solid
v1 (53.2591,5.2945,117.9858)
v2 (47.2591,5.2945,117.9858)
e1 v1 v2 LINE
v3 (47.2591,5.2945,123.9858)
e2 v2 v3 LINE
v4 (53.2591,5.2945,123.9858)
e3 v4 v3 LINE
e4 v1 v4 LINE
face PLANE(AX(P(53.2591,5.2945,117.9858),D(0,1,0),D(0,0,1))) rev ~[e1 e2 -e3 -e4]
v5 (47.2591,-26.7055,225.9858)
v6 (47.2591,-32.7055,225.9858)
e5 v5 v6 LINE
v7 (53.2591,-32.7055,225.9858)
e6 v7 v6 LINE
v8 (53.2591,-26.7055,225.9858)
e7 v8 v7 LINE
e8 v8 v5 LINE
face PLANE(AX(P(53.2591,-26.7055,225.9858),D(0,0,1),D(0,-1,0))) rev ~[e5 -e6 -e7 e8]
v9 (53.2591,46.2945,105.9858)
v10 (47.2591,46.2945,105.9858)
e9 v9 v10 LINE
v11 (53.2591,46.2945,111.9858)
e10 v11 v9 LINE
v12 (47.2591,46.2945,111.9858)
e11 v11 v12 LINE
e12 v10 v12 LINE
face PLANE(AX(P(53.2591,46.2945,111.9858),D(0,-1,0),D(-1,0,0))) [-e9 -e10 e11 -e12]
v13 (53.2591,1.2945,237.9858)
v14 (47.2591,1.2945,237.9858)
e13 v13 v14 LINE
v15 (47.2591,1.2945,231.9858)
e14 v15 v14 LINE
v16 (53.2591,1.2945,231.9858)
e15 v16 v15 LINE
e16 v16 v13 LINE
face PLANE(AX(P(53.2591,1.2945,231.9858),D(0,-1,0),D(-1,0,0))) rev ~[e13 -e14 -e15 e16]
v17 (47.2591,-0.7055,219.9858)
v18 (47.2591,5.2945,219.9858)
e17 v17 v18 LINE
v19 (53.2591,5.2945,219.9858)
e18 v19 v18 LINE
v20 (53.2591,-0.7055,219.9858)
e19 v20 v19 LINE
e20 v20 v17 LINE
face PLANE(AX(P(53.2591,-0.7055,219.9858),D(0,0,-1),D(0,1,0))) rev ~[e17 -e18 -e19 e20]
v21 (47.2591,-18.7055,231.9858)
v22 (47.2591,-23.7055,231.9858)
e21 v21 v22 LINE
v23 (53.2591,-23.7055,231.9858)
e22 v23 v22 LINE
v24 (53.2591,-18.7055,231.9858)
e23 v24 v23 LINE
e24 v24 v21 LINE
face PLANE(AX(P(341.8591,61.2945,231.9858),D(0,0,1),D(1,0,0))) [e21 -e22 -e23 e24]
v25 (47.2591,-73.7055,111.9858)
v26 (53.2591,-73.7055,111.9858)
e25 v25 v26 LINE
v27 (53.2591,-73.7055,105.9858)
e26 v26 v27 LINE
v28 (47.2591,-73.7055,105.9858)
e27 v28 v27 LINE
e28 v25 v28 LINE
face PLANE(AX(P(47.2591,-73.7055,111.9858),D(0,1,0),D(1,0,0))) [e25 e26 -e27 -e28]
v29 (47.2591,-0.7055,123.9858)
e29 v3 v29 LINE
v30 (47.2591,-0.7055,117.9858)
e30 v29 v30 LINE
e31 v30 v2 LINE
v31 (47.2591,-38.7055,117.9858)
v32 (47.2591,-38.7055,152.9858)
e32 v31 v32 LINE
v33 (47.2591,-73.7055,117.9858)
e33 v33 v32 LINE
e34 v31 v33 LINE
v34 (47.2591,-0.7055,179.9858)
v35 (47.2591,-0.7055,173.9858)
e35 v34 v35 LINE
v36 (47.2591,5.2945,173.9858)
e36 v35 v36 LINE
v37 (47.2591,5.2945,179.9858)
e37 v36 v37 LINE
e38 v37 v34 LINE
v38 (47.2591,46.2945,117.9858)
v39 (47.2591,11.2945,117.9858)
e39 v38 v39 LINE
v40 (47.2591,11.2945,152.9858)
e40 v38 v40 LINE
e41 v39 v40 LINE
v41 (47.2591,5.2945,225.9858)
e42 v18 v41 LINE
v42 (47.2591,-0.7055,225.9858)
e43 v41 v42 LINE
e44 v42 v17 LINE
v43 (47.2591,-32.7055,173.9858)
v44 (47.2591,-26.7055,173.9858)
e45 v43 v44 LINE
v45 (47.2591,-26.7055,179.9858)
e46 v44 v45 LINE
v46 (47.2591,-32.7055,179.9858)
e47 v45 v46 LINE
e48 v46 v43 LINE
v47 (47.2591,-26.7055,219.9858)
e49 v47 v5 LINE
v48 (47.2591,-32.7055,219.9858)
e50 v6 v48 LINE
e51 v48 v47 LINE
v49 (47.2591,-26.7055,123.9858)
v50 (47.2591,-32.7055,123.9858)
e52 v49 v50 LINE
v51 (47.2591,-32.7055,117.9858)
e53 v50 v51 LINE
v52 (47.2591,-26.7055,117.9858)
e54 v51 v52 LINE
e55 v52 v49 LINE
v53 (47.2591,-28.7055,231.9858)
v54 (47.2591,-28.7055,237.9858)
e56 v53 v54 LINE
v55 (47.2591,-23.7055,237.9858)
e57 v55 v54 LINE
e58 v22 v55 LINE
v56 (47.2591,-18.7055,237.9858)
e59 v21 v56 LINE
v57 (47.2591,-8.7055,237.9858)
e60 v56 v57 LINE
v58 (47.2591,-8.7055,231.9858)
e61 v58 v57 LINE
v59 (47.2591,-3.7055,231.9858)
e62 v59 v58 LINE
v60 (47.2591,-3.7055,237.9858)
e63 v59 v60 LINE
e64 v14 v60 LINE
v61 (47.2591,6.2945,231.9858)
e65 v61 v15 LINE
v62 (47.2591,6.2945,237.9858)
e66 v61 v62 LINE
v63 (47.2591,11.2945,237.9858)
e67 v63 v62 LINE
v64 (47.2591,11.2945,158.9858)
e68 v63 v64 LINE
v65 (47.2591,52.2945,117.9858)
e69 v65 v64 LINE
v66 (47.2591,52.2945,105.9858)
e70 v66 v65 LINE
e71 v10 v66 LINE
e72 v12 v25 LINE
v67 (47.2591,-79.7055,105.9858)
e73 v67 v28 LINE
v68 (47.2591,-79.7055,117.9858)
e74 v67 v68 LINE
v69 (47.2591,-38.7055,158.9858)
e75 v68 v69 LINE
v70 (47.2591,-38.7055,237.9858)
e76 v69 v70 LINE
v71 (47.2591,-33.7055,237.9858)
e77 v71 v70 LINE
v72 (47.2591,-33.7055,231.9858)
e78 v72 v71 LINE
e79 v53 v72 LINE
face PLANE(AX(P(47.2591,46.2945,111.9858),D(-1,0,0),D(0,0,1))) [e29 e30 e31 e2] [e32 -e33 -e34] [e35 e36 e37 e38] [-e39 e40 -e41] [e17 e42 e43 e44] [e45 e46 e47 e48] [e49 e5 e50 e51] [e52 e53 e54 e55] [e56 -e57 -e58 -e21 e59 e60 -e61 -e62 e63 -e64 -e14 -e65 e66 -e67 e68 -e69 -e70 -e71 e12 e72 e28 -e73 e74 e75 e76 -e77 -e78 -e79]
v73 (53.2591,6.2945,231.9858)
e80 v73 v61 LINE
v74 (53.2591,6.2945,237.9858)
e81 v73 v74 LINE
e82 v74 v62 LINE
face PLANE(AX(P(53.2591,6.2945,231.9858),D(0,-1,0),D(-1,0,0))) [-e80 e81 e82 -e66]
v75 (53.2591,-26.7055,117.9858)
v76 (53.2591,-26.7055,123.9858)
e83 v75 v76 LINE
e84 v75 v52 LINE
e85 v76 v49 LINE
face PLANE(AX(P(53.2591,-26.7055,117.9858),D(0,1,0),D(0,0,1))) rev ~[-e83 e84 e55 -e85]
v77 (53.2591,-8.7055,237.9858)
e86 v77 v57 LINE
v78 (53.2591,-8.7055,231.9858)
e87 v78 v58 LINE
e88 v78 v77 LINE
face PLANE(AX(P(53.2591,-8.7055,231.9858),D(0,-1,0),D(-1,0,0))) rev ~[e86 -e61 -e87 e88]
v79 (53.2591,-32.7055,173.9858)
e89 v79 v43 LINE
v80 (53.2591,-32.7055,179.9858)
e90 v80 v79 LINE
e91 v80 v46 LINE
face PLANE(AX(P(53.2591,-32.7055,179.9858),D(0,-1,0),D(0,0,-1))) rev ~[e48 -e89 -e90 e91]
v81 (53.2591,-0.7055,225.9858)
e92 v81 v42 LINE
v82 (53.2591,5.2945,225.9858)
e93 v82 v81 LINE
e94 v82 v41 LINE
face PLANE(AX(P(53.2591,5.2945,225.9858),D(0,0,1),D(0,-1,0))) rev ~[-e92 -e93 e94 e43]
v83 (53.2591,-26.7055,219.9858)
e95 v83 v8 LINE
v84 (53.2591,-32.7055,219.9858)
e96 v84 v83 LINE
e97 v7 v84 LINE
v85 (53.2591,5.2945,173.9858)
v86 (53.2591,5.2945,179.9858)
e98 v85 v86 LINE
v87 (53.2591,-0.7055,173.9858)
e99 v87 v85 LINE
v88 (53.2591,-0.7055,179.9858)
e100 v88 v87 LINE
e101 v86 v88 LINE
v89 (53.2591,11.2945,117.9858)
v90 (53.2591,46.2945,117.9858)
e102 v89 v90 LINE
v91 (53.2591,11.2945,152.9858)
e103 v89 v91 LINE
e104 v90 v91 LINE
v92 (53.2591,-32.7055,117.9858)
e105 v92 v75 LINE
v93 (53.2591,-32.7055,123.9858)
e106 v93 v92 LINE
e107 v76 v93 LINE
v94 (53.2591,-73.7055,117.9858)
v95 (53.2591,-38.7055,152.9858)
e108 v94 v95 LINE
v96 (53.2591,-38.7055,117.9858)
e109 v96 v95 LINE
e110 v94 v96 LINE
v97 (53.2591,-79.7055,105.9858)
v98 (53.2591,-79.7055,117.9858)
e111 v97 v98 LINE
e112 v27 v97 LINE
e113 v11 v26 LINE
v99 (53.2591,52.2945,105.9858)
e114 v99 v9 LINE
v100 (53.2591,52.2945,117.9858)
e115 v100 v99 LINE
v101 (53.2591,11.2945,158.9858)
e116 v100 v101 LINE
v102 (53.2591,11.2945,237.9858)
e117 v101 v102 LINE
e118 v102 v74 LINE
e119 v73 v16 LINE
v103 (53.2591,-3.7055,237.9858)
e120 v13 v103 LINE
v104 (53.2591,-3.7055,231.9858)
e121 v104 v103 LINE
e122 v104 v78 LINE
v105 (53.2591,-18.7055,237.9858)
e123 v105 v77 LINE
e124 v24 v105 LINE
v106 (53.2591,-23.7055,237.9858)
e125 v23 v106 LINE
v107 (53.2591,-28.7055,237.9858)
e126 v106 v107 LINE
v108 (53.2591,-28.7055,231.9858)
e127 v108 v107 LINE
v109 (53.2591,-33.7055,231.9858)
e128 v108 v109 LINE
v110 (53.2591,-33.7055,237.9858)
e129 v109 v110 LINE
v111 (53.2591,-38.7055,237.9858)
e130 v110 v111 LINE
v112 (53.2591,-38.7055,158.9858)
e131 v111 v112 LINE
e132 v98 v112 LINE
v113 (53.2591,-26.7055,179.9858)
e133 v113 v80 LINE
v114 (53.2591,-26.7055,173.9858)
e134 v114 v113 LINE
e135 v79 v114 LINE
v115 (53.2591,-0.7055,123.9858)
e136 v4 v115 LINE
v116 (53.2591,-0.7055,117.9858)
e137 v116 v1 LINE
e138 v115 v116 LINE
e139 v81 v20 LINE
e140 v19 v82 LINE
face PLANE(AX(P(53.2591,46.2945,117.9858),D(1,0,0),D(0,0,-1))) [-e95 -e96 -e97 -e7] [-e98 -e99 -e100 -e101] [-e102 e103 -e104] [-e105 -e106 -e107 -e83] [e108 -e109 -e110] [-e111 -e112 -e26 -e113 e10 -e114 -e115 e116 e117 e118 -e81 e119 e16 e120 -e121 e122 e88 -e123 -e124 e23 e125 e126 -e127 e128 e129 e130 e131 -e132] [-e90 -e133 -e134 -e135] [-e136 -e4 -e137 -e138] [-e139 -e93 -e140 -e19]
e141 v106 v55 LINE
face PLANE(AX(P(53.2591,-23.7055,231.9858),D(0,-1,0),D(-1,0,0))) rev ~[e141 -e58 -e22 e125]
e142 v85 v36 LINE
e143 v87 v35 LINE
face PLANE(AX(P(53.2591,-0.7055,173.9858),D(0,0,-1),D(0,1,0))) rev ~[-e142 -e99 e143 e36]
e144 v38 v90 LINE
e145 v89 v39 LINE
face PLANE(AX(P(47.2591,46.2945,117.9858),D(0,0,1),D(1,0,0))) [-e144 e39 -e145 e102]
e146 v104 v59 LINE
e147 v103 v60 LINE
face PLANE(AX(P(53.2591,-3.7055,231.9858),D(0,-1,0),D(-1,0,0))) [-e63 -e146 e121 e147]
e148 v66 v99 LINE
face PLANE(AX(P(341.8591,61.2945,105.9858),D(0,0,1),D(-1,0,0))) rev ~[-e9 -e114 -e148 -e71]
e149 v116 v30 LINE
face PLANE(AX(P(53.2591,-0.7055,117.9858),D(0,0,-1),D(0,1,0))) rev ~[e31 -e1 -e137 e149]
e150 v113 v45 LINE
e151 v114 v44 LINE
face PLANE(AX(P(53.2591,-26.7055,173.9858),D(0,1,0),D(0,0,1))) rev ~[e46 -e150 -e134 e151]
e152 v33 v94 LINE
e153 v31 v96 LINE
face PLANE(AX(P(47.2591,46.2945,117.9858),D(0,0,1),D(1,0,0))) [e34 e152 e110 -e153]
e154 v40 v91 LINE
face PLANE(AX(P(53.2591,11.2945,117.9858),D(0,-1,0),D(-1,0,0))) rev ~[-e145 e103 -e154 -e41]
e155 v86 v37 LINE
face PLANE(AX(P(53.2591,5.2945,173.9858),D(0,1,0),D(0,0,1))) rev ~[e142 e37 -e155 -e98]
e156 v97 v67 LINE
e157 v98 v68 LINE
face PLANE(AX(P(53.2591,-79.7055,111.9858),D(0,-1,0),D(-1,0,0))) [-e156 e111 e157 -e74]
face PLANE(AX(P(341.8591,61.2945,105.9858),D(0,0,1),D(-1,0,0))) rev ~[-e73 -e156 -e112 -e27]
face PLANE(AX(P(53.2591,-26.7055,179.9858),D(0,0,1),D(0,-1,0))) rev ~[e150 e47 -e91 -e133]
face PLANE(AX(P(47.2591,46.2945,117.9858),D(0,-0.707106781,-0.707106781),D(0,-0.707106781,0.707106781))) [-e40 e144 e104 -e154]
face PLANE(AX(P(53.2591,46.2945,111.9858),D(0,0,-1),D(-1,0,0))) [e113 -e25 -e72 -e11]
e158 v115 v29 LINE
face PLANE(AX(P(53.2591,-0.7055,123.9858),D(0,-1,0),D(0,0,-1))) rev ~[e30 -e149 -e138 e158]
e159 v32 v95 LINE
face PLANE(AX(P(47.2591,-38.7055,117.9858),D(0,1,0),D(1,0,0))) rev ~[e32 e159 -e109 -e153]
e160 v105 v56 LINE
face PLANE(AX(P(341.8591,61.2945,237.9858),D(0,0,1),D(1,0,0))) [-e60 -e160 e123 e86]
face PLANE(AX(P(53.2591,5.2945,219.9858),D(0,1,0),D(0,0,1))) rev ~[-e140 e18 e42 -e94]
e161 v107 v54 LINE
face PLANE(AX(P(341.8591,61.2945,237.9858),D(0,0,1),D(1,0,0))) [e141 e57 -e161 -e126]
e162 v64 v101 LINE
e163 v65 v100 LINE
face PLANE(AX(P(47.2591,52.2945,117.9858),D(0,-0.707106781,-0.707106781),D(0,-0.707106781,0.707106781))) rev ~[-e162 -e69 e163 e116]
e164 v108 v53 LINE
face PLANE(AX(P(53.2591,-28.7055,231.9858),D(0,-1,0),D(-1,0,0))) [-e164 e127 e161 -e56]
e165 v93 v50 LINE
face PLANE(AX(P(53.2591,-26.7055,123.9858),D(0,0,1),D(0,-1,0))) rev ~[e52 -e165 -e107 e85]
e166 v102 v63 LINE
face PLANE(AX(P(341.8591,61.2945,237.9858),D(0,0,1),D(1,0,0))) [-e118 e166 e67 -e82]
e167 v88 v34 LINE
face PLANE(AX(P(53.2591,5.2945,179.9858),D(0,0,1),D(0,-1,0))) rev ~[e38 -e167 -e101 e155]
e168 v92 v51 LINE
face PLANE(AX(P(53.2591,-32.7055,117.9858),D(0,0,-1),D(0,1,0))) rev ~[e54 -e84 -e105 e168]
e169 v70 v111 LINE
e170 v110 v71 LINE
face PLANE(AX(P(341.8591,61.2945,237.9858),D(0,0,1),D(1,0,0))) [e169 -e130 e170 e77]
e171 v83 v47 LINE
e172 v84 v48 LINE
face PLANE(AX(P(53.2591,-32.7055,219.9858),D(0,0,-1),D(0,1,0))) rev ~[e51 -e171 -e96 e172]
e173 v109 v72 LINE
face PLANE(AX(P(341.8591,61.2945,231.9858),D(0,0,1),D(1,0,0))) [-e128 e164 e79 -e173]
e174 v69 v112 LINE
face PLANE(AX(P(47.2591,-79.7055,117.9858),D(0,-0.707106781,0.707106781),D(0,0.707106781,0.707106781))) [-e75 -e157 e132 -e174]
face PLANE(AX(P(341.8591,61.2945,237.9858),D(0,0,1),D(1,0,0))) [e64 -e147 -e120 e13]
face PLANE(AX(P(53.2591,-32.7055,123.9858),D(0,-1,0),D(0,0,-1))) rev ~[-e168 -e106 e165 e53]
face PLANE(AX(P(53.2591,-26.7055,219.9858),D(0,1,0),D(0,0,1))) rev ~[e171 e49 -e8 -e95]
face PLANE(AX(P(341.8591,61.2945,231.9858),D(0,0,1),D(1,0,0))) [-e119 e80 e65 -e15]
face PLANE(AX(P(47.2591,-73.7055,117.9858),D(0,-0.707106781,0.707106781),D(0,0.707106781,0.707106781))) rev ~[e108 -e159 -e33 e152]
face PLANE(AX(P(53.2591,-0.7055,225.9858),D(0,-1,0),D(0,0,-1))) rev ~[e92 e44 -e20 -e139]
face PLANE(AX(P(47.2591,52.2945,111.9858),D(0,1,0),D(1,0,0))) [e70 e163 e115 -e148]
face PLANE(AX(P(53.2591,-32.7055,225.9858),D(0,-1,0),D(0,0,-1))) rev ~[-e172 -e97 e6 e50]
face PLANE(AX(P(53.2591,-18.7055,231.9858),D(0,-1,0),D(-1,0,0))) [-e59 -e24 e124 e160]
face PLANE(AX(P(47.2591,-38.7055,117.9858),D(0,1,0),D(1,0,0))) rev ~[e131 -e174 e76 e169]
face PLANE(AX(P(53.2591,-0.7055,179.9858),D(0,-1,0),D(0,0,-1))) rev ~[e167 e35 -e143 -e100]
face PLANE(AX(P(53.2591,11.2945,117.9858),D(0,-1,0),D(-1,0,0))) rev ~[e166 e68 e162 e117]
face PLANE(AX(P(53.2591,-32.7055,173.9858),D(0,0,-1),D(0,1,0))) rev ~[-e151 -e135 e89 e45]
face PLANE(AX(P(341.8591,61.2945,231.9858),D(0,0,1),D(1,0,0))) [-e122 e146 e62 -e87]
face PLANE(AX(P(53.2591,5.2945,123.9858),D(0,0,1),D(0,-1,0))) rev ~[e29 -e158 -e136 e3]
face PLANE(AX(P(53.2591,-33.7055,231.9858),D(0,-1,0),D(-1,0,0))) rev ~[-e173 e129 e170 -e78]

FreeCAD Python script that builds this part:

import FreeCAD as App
import Part
import Sketcher

V = App.Vector
Q = App.Units.Quantity


def add_polygon(sketch, points):
    """Adds a closed chain of lines whose ends are joined by coincident constraints."""
    first, n = sketch.GeometryCount, len(points)
    for a, b in zip(points, points[1:] + points[:1]):
        sketch.addGeometry(Part.LineSegment(App.Vector(*a, 0), App.Vector(*b, 0)), False)
    for i in range(n):
        sketch.addConstraint(Sketcher.Constraint("Coincident", first + i, 2, first + (i + 1) % n, 1))

doc = App.newDocument("Part")
body = doc.addObject("PartDesign::Body", "Body")
body.AllowCompound = True

# Sketch on XY plane
sketch1 = doc.addObject("Sketcher::SketchObject", "Sketch")
body.addObject(sketch1)
sketch1.AttachmentSupport = (doc.XY_Plane, [""])
sketch1.MapMode = "FlatFace"
sketch1.AttachmentOffset = App.Placement(V(0, 0, 111.9858), App.Rotation())
add_polygon(sketch1, [(53, 52), (47, 52), (47, 46), (53, 46)])  # lines 0-3
add_polygon(sketch1, [(47, -74), (47, -80), (53, -80), (53, -74)])  # lines 4-7
sketch1.addConstraint(Sketcher.Constraint("Horizontal", 0))
sketch1.addConstraint(Sketcher.Constraint("Vertical", 1))
sketch1.addConstraint(Sketcher.Constraint("Horizontal", 2))
sketch1.addConstraint(Sketcher.Constraint("Vertical", 3))
sketch1.addConstraint(Sketcher.Constraint("Vertical", 4))
sketch1.addConstraint(Sketcher.Constraint("Horizontal", 5))
sketch1.addConstraint(Sketcher.Constraint("Vertical", 6))
sketch1.addConstraint(Sketcher.Constraint("Horizontal", 7))
sketch1.addConstraint(Sketcher.Constraint("Vertical", 1, 2, 4, 2))
sketch1.addConstraint(Sketcher.Constraint("Vertical", 3, 2, 5, 2))
sketch1.addConstraint(Sketcher.Constraint("Equal", 7, 1))
sketch1.addConstraint(Sketcher.Constraint("Equal", 3, 4))
sketch1.addConstraint(Sketcher.Constraint("DistanceX", 0, 2, 0, 1, Q("6 mm")))
sketch1.addConstraint(Sketcher.Constraint("DistanceY", 4, 2, 1, 2, Q("126 mm")))
sketch1.addConstraint(Sketcher.Constraint("DistanceX", -1, 1, 0, 2, Q("47.259 mm")))
sketch1.addConstraint(Sketcher.Constraint("DistanceY", -1, 1, 0, 2, Q("52.2945 mm")))
pad1 = doc.addObject("PartDesign::Pad", "Pad")
body.addObject(pad1)
pad1.Profile = sketch1
pad1.Type = "TwoLengths"
pad1.Length = 6
pad1.Length2 = 6

# Sketch on XZ plane
sketch2 = doc.addObject("Sketcher::SketchObject", "Sketch001")
body.addObject(sketch2)
sketch2.AttachmentSupport = (doc.XZ_Plane, [""])
sketch2.MapMode = "FlatFace"
sketch2.AttachmentOffset = App.Placement(V(0, 0, -46.2945), App.Rotation())
add_polygon(sketch2, [(53, 118), (47, 118), (47, 112), (53, 112)])  # lines 0-3
sketch2.addConstraint(Sketcher.Constraint("Horizontal", 0))
sketch2.addConstraint(Sketcher.Constraint("Vertical", 1))
sketch2.addConstraint(Sketcher.Constraint("Horizontal", 2))
sketch2.addConstraint(Sketcher.Constraint("Vertical", 3))
sketch2.addConstraint(Sketcher.Constraint("Equal", 2, 1))
sketch2.addConstraint(Sketcher.Constraint("DistanceX", 0, 2, 0, 1, Q("6 mm")))
sketch2.addConstraint(Sketcher.Constraint("DistanceX", -1, 1, 0, 2, Q("47.259 mm")))
sketch2.addConstraint(Sketcher.Constraint("DistanceY", -1, 1, 0, 2, Q("117.9858 mm")))
pad2 = doc.addObject("PartDesign::Pad", "Pad001")
body.addObject(pad2)
pad2.Profile = sketch2
pad2.Type = "UpToFirst"

# Sketch on XY plane
sketch3 = doc.addObject("Sketcher::SketchObject", "Sketch002")
body.addObject(sketch3)
sketch3.AttachmentSupport = (doc.XY_Plane, [""])
sketch3.MapMode = "FlatFace"
sketch3.AttachmentOffset = App.Placement(V(0, 0, 117.9858), App.Rotation())
add_polygon(sketch3, [(53, 11), (47, 11), (47, -39), (53, -39)])  # lines 0-3
sketch3.addConstraint(Sketcher.Constraint("Horizontal", 0))
sketch3.addConstraint(Sketcher.Constraint("Vertical", 1))
sketch3.addConstraint(Sketcher.Constraint("Horizontal", 2))
sketch3.addConstraint(Sketcher.Constraint("Vertical", 3))
sketch3.addConstraint(Sketcher.Constraint("DistanceY", 1, 2, 1, 1, Q("50 mm")))
sketch3.addConstraint(Sketcher.Constraint("DistanceX", 0, 2, 0, 1, Q("6 mm")))
sketch3.addConstraint(Sketcher.Constraint("DistanceX", -1, 1, 0, 2, Q("47.259 mm")))
sketch3.addConstraint(Sketcher.Constraint("DistanceY", -1, 1, 0, 2, Q("11.2945 mm")))
pad3 = doc.addObject("PartDesign::Pad", "Pad002")
body.addObject(pad3)
pad3.Profile = sketch3
pad3.Length = 114

# Sketch on YZ plane
sketch4 = doc.addObject("Sketcher::SketchObject", "Sketch003")
body.addObject(sketch4)
sketch4.AttachmentSupport = (doc.YZ_Plane, [""])
sketch4.MapMode = "FlatFace"
sketch4.AttachmentOffset = App.Placement(V(0, 0, 47.2591), App.Rotation())
add_polygon(sketch4, [(-74, 118), (-80, 118), (-39, 159), (-39, 153)])  # lines 0-3
add_polygon(sketch4, [(52, 118), (46, 118), (11, 153), (11, 159)])  # lines 4-7
sketch4.addConstraint(Sketcher.Constraint("Horizontal", 0))
sketch4.addConstraint(Sketcher.Constraint("Vertical", 2))
sketch4.addConstraint(Sketcher.Constraint("Horizontal", 4))
sketch4.addConstraint(Sketcher.Constraint("Vertical", 6))
sketch4.addConstraint(Sketcher.Constraint("Parallel", 1, 3))
sketch4.addConstraint(Sketcher.Constraint("Perpendicular", 3, 5))
sketch4.addConstraint(Sketcher.Constraint("Parallel", 5, 7))
sketch4.addConstraint(Sketcher.Constraint("Horizontal", 3, 2, 4, 2))
sketch4.addConstraint(Sketcher.Constraint("Horizontal", 2, 2, 5, 2))
sketch4.addConstraint(Sketcher.Constraint("Horizontal", 1, 2, 6, 2))
sketch4.addConstraint(Sketcher.Constraint("Equal", 0, 4))
sketch4.addConstraint(Sketcher.Constraint("DistanceX", 0, 2, 0, 1, Q("6 mm")))
sketch4.addConstraint(Sketcher.Constraint("DistanceX", 0, 2, 1, 2, Q("41 mm")))
sketch4.addConstraint(Sketcher.Constraint("DistanceX", 2, 2, 4, 2, Q("85 mm")))
sketch4.addConstraint(Sketcher.Constraint("DistanceX", 0, 2, -1, 1, Q("79.7055 mm")))
sketch4.addConstraint(Sketcher.Constraint("DistanceY", -1, 1, 0, 2, Q("117.9858 mm")))
pad4 = doc.addObject("PartDesign::Pad", "Pad003")
body.addObject(pad4)
pad4.Profile = sketch4
pad4.Length = 6

# Sketch on XY plane
sketch5 = doc.addObject("Sketcher::SketchObject", "Sketch004")
body.addObject(sketch5)
sketch5.AttachmentSupport = (doc.XY_Plane, [""])
sketch5.MapMode = "FlatFace"
sketch5.AttachmentOffset = App.Placement(V(0, 0, 231.9858), App.Rotation())
add_polygon(sketch5, [(47.3, -33.7), (47.3, -38.7), (53.3, -38.7), (53.3, -33.7)])  # lines 0-3
add_polygon(sketch5, [(47.3, -23.7), (47.3, -28.7), (53.3, -28.7), (53.3, -23.7)])  # lines 4-7
add_polygon(sketch5, [(47.3, -18.7), (53.3, -18.7), (53.3, -8.7), (47.3, -8.7)])  # lines 8-11
add_polygon(sketch5, [(47.3, 1.3), (47.3, -3.7), (53.3, -3.7), (53.3, 1.3)])  # lines 12-15
add_polygon(sketch5, [(47.3, 11.3), (47.3, 6.3), (53.3, 6.3), (53.3, 11.3)])  # lines 16-19
sketch5.addConstraint(Sketcher.Constraint("Vertical", 0))
sketch5.addConstraint(Sketcher.Constraint("Horizontal", 1))
sketch5.addConstraint(Sketcher.Constraint("Vertical", 2))
sketch5.addConstraint(Sketcher.Constraint("Horizontal", 3))
sketch5.addConstraint(Sketcher.Constraint("Vertical", 4))
sketch5.addConstraint(Sketcher.Constraint("Horizontal", 5))
sketch5.addConstraint(Sketcher.Constraint("Vertical", 6))
sketch5.addConstraint(Sketcher.Constraint("Horizontal", 7))
sketch5.addConstraint(Sketcher.Constraint("Horizontal", 8))
sketch5.addConstraint(Sketcher.Constraint("Vertical", 9))
sketch5.addConstraint(Sketcher.Constraint("Horizontal", 10))
sketch5.addConstraint(Sketcher.Constraint("Vertical", 11))
sketch5.addConstraint(Sketcher.Constraint("Vertical", 12))
sketch5.addConstraint(Sketcher.Constraint("Horizontal", 13))
sketch5.addConstraint(Sketcher.Constraint("Vertical", 14))
sketch5.addConstraint(Sketcher.Constraint("Horizontal", 15))
sketch5.addConstraint(Sketcher.Constraint("Vertical", 16))
sketch5.addConstraint(Sketcher.Constraint("Horizontal", 17))
sketch5.addConstraint(Sketcher.Constraint("Vertical", 18))
sketch5.addConstraint(Sketcher.Constraint("Horizontal", 19))
sketch5.addConstraint(Sketcher.Constraint("Vertical", 3, 2, 4, 2))
sketch5.addConstraint(Sketcher.Constraint("Vertical", 2, 2, 5, 2))
sketch5.addConstraint(Sketcher.Constraint("Vertical", 6, 2, 8, 2))
sketch5.addConstraint(Sketcher.Constraint("Vertical", 7, 2, 10, 2))
sketch5.addConstraint(Sketcher.Constraint("Vertical", 11, 2, 12, 2))
sketch5.addConstraint(Sketcher.Constraint("Vertical", 9, 2, 13, 2))
sketch5.addConstraint(Sketcher.Constraint("Vertical", 15, 2, 16, 2))
sketch5.addConstraint(Sketcher.Constraint("Vertical", 14, 2, 17, 2))
sketch5.addConstraint(Sketcher.Constraint("Equal", 2, 4))
sketch5.addConstraint(Sketcher.Constraint("Equal", 6, 12))
sketch5.addConstraint(Sketcher.Constraint("Equal", 14, 16))
sketch5.addConstraint(Sketcher.Constraint("DistanceY", 0, 2, 0, 1, Q("5 mm")))
sketch5.addConstraint(Sketcher.Constraint("DistanceY", 3, 2, 4, 2, Q("5 mm")))
sketch5.addConstraint(Sketcher.Constraint("DistanceY", 6, 2, 8, 2, Q("5 mm")))
sketch5.addConstraint(Sketcher.Constraint("DistanceY", 10, 2, 12, 2, Q("5 mm")))
sketch5.addConstraint(Sketcher.Constraint("DistanceY", 15, 2, 16, 2, Q("5 mm")))
sketch5.addConstraint(Sketcher.Constraint("DistanceX", 1, 1, 1, 2, Q("6 mm")))
sketch5.addConstraint(Sketcher.Constraint("DistanceY", 9, 1, 9, 2, Q("10 mm")))
sketch5.addConstraint(Sketcher.Constraint("DistanceX", -1, 1, 0, 2, Q("47.259 mm")))
sketch5.addConstraint(Sketcher.Constraint("DistanceY", 0, 2, -1, 1, Q("38.7055 mm")))
pad5 = doc.addObject("PartDesign::Pad", "Pad004")
body.addObject(pad5)
pad5.Profile = sketch5
pad5.Length = 6

# Sketch on YZ plane
sketch6 = doc.addObject("Sketcher::SketchObject", "Sketch005")
body.addObject(sketch6)
sketch6.AttachmentSupport = (doc.YZ_Plane, [""])
sketch6.MapMode = "FlatFace"
sketch6.AttachmentOffset = App.Placement(V(0, 0, 53.2591), App.Rotation())
add_polygon(sketch6, [(-27, 226), (-33, 226), (-33, 220), (-27, 220)])  # lines 0-3
add_polygon(sketch6, [(-33, 174), (-27, 174), (-27, 180), (-33, 180)])  # lines 4-7
add_polygon(sketch6, [(-1, 180), (-1, 174), (5, 174), (5, 180)])  # lines 8-11
add_polygon(sketch6, [(-1, 226), (-1, 220), (5, 220), (5, 226)])  # lines 12-15
sketch6.addConstraint(Sketcher.Constraint("Horizontal", 0))
sketch6.addConstraint(Sketcher.Constraint("Vertical", 1))
sketch6.addConstraint(Sketcher.Constraint("Horizontal", 2))
sketch6.addConstraint(Sketcher.Constraint("Vertical", 3))
sketch6.addConstraint(Sketcher.Constraint("Horizontal", 4))
sketch6.addConstraint(Sketcher.Constraint("Vertical", 5))
sketch6.addConstraint(Sketcher.Constraint("Horizontal", 6))
sketch6.addConstraint(Sketcher.Constraint("Vertical", 7))
sketch6.addConstraint(Sketcher.Constraint("Vertical", 8))
sketch6.addConstraint(Sketcher.Constraint("Horizontal", 9))
sketch6.addConstraint(Sketcher.Constraint("Vertical", 10))
sketch6.addConstraint(Sketcher.Constraint("Horizontal", 11))
sketch6.addConstraint(Sketcher.Constraint("Vertical", 12))
sketch6.addConstraint(Sketcher.Constraint("Horizontal", 13))
sketch6.addConstraint(Sketcher.Constraint("Vertical", 14))
sketch6.addConstraint(Sketcher.Constraint("Horizontal", 15))
sketch6.addConstraint(Sketcher.Constraint("Horizontal", 7, 2, 8, 2))
sketch6.addConstraint(Sketcher.Constraint("Horizontal", 6, 2, 10, 2))
sketch6.addConstraint(Sketcher.Constraint("Horizontal", 2, 2, 12, 2))
sketch6.addConstraint(Sketcher.Constraint("Horizontal", 3, 2, 14, 2))
sketch6.addConstraint(Sketcher.Constraint("Vertical", 3, 2, 4, 2))
sketch6.addConstraint(Sketcher.Constraint("Vertical", 1, 2, 6, 2))
sketch6.addConstraint(Sketcher.Constraint("Vertical", 11, 2, 12, 2))
sketch6.addConstraint(Sketcher.Constraint("Vertical", 10, 2, 13, 2))
sketch6.addConstraint(Sketcher.Constraint("Equal", 6, 9))
sketch6.addConstraint(Sketcher.Constraint("Equal", 15, 1))
sketch6.addConstraint(Sketcher.Constraint("Equal", 3, 5))
sketch6.addConstraint(Sketcher.Constraint("DistanceX", 0, 2, 0, 1, Q("6 mm")))
sketch6.addConstraint(Sketcher.Constraint("DistanceY", 5, 2, 2, 2, Q("40 mm")))
sketch6.addConstraint(Sketcher.Constraint("DistanceX", 7, 2, 8, 2, Q("32 mm")))
sketch6.addConstraint(Sketcher.Constraint("DistanceX", 0, 2, -1, 1, Q("32.7055 mm")))
sketch6.addConstraint(Sketcher.Constraint("DistanceY", -1, 1, 0, 2, Q("225.9858 mm")))
pocket1 = doc.addObject("PartDesign::Pocket", "Pocket")
body.addObject(pocket1)
pocket1.Profile = sketch6
pocket1.Length = 6

# Sketch on YZ plane
sketch7 = doc.addObject("Sketcher::SketchObject", "Sketch006")
body.addObject(sketch7)
sketch7.AttachmentSupport = (doc.YZ_Plane, [""])
sketch7.MapMode = "FlatFace"
sketch7.AttachmentOffset = App.Placement(V(0, 0, 53.2591), App.Rotation())
add_polygon(sketch7, [(-1, 118), (5, 118), (5, 124), (-1, 124)])  # lines 0-3
add_polygon(sketch7, [(-33, 118), (-27, 118), (-27, 124), (-33, 124)])  # lines 4-7
sketch7.addConstraint(Sketcher.Constraint("Horizontal", 0))
sketch7.addConstraint(Sketcher.Constraint("Vertical", 1))
sketch7.addConstraint(Sketcher.Constraint("Horizontal", 2))
sketch7.addConstraint(Sketcher.Constraint("Vertical", 3))
sketch7.addConstraint(Sketcher.Constraint("Horizontal", 4))
sketch7.addConstraint(Sketcher.Constraint("Vertical", 5))
sketch7.addConstraint(Sketcher.Constraint("Horizontal", 6))
sketch7.addConstraint(Sketcher.Constraint("Vertical", 7))
sketch7.addConstraint(Sketcher.Constraint("Horizontal", 3, 2, 4, 2))
sketch7.addConstraint(Sketcher.Constraint("Horizontal", 2, 2, 5, 2))
sketch7.addConstraint(Sketcher.Constraint("Equal", 2, 4))
sketch7.addConstraint(Sketcher.Constraint("Equal", 6, 1))
sketch7.addConstraint(Sketcher.Constraint("DistanceX", 0, 1, 0, 2, Q("6 mm")))
sketch7.addConstraint(Sketcher.Constraint("DistanceX", 4, 2, 3, 2, Q("26 mm")))
sketch7.addConstraint(Sketcher.Constraint("DistanceX", -1, 1, 0, 2, Q("5.2945 mm")))
sketch7.addConstraint(Sketcher.Constraint("DistanceY", -1, 1, 0, 2, Q("117.9858 mm")))
pocket2 = doc.addObject("PartDesign::Pocket", "Pocket001")
body.addObject(pocket2)
pocket2.Profile = sketch7
pocket2.Length = 6

doc.recompute()
